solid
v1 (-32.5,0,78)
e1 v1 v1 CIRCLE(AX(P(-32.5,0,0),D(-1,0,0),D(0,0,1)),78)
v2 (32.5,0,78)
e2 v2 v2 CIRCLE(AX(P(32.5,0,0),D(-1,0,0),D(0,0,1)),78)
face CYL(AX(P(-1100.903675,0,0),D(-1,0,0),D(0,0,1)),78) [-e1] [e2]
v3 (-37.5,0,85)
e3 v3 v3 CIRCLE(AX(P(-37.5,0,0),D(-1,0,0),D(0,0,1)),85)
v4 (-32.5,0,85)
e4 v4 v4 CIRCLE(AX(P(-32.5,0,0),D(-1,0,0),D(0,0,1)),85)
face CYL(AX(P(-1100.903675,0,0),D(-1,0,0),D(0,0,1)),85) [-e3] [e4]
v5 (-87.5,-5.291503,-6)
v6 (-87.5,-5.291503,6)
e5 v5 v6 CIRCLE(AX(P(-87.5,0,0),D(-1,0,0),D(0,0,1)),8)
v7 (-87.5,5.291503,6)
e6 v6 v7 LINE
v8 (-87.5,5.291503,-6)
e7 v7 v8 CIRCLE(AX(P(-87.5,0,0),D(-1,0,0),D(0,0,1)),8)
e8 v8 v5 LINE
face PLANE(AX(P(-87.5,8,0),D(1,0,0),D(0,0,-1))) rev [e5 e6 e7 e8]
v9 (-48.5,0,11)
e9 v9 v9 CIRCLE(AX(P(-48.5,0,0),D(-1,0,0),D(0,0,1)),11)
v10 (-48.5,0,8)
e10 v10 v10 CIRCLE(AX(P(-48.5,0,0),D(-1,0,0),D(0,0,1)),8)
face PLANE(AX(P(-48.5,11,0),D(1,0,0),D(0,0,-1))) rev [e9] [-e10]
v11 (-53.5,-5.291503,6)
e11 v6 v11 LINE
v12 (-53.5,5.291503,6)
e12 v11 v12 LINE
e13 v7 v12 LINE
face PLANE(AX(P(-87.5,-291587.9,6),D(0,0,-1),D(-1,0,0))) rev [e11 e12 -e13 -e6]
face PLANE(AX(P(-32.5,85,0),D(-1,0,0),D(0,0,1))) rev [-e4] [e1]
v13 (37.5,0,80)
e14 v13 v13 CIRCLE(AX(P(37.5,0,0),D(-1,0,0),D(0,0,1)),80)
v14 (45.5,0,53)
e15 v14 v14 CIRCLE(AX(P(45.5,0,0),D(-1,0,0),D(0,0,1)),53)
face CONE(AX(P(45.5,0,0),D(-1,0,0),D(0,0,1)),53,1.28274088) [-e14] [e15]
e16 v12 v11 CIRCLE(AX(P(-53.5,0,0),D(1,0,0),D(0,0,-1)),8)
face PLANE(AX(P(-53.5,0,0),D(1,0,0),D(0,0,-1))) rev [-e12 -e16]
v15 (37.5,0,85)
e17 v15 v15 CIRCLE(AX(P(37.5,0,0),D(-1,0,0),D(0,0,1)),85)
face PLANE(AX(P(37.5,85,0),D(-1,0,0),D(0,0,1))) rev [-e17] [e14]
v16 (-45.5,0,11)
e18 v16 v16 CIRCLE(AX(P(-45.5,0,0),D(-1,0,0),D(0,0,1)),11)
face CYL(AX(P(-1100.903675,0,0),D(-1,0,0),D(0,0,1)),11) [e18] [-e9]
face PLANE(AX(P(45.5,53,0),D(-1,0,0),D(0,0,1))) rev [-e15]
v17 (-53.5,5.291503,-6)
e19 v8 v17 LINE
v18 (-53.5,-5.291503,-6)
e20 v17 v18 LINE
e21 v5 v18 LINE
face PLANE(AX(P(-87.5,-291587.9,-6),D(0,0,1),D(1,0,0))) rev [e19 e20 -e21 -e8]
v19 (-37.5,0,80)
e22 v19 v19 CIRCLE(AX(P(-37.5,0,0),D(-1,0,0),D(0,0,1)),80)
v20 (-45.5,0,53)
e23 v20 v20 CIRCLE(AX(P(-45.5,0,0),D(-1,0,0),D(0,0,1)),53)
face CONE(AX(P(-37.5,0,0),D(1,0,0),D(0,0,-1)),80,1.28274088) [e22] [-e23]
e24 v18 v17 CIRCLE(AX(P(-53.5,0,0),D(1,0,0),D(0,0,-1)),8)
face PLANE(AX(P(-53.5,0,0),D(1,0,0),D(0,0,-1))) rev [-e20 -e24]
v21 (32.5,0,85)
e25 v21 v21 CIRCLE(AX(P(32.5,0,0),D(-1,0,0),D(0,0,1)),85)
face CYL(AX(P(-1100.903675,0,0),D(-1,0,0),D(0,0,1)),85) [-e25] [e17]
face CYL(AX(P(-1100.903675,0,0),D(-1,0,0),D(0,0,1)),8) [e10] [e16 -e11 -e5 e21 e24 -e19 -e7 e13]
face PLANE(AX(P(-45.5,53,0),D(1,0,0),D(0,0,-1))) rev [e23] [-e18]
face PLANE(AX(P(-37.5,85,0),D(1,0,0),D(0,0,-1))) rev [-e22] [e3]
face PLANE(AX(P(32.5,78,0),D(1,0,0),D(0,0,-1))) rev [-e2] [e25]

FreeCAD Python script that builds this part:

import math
import FreeCAD as App
import Part
import Sketcher
from FreeCAD import Vector
Q = App.Units.Quantity

doc = App.newDocument("Part")
params = doc.addObject("Spreadsheet::Sheet", "Params")
for row, (alias, value) in enumerate([
    ("sketch1_width", "5 mm"),
    ("sketch1_width2", "65 mm"),
    ("sketch1_width3", "3 mm"),
    ("sketch1_width4", "39 mm"),
    ("sketch1_width5", "175 mm"),
    ("revolution_angle", "360 deg"),
    ("sketch2_radius", "8 mm"),
    ("sketch3_radius", "8 mm"),
    ("sketch4_diameter", "106 mm"),
    ("pocket3_length", "42 mm"),
], start=1):
    params.set(f"A{row}", alias)
    params.set(f"B{row}", "=" + value)
    params.setAlias(f"B{row}", alias)

body = doc.addObject("PartDesign::Body", "Body")

sketch1 = doc.addObject("Sketcher::SketchObject", "Sketch")
body.addObject(sketch1)
sketch1.AttachmentSupport = (doc.XY_Plane, [""])
sketch1.MapMode = "FlatFace"
sketch1.addGeometry(Part.LineSegment(Vector(37.5, 85, 0), Vector(32.5, 85, 0)), False)
sketch1.addGeometry(Part.LineSegment(Vector(32.5, 85, 0), Vector(32.5, 78, 0)), False)
sketch1.addGeometry(Part.LineSegment(Vector(32.5, 78, 0), Vector(-32.5, 78, 0)), False)
sketch1.addGeometry(Part.LineSegment(Vector(-32.5, 78, 0), Vector(-32.5, 85, 0)), False)
sketch1.addGeometry(Part.LineSegment(Vector(-32.5, 85, 0), Vector(-37.5, 85, 0)), False)
sketch1.addGeometry(Part.LineSegment(Vector(-37.5, 85, 0), Vector(-37.5, 80, 0)), False)
sketch1.addGeometry(Part.LineSegment(Vector(-37.5, 80, 0), Vector(-45.5, 53, 0)), False)
sketch1.addGeometry(Part.LineSegment(Vector(-45.5, 53, 0), Vector(-45.5, 11, 0)), False)
sketch1.addGeometry(Part.LineSegment(Vector(-45.5, 11, 0), Vector(-48.5, 11, 0)), False)
sketch1.addGeometry(Part.LineSegment(Vector(-48.5, 11, 0), Vector(-48.5, 8, 0)), False)
sketch1.addGeometry(Part.LineSegment(Vector(-48.5, 8, 0), Vector(-87.5, 8, 0)), False)
sketch1.addGeometry(Part.LineSegment(Vector(-87.5, 8, 0), Vector(-87.5, 0, 0)), False)
sketch1.addGeometry(Part.LineSegment(Vector(-87.5, 0, 0), Vector(87.5, 0, 0)), False)
sketch1.addGeometry(Part.LineSegment(Vector(87.5, 0, 0), Vector(87.5, 8, 0)), False)
sketch1.addGeometry(Part.LineSegment(Vector(87.5, 8, 0), Vector(48.5, 8, 0)), False)
sketch1.addGeometry(Part.LineSegment(Vector(48.5, 8, 0), Vector(48.5, 11, 0)), False)
sketch1.addGeometry(Part.LineSegment(Vector(48.5, 11, 0), Vector(45.5, 11, 0)), False)
sketch1.addGeometry(Part.LineSegment(Vector(45.5, 11, 0), Vector(45.5, 53, 0)), False)
sketch1.addGeometry(Part.LineSegment(Vector(45.5, 53, 0), Vector(37.5, 80, 0)), False)
sketch1.addGeometry(Part.LineSegment(Vector(37.5, 80, 0), Vector(37.5, 85, 0)), False)
sketch1.addConstraint(Sketcher.Constraint("Coincident", 0, 2, 1, 1))
sketch1.addConstraint(Sketcher.Constraint("Coincident", 1, 2, 2, 1))
sketch1.addConstraint(Sketcher.Constraint("Coincident", 2, 2, 3, 1))
sketch1.addConstraint(Sketcher.Constraint("Coincident", 3, 2, 4, 1))
sketch1.addConstraint(Sketcher.Constraint("Coincident", 4, 2, 5, 1))
sketch1.addConstraint(Sketcher.Constraint("Coincident", 5, 2, 6, 1))
sketch1.addConstraint(Sketcher.Constraint("Coincident", 6, 2, 7, 1))
sketch1.addConstraint(Sketcher.Constraint("Coincident", 7, 2, 8, 1))
sketch1.addConstraint(Sketcher.Constraint("Coincident", 8, 2, 9, 1))
sketch1.addConstraint(Sketcher.Constraint("Coincident", 9, 2, 10, 1))
sketch1.addConstraint(Sketcher.Constraint("Coincident", 10, 2, 11, 1))
sketch1.addConstraint(Sketcher.Constraint("Coincident", 11, 2, 12, 1))
sketch1.addConstraint(Sketcher.Constraint("Coincident", 12, 2, 13, 1))
sketch1.addConstraint(Sketcher.Constraint("Coincident", 13, 2, 14, 1))
sketch1.addConstraint(Sketcher.Constraint("Coincident", 14, 2, 15, 1))
sketch1.addConstraint(Sketcher.Constraint("Coincident", 15, 2, 16, 1))
sketch1.addConstraint(Sketcher.Constraint("Coincident", 16, 2, 17, 1))
sketch1.addConstraint(Sketcher.Constraint("Coincident", 17, 2, 18, 1))
sketch1.addConstraint(Sketcher.Constraint("Coincident", 18, 2, 19, 1))
sketch1.addConstraint(Sketcher.Constraint("Coincident", 19, 2, 0, 1))
sketch1.addConstraint(Sketcher.Constraint("Horizontal", 0))
sketch1.addConstraint(Sketcher.Constraint("Vertical", 1))
sketch1.addConstraint(Sketcher.Constraint("Horizontal", 2))
sketch1.addConstraint(Sketcher.Constraint("Vertical", 3))
sketch1.addConstraint(Sketcher.Constraint("Horizontal", 4))
sketch1.addConstraint(Sketcher.Constraint("Vertical", 5))
sketch1.addConstraint(Sketcher.Constraint("Vertical", 7))
sketch1.addConstraint(Sketcher.Constraint("Horizontal", 8))
sketch1.addConstraint(Sketcher.Constraint("Vertical", 9))
sketch1.addConstraint(Sketcher.Constraint("Horizontal", 10))
sketch1.addConstraint(Sketcher.Constraint("Vertical", 11))
sketch1.addConstraint(Sketcher.Constraint("Horizontal", 12))
sketch1.addConstraint(Sketcher.Constraint("Vertical", 13))
sketch1.addConstraint(Sketcher.Constraint("Horizontal", 14))
sketch1.addConstraint(Sketcher.Constraint("Vertical", 15))
sketch1.addConstraint(Sketcher.Constraint("Horizontal", 16))
sketch1.addConstraint(Sketcher.Constraint("Vertical", 17))
sketch1.addConstraint(Sketcher.Constraint("Vertical", 19))
sketch1.addConstraint(Sketcher.Constraint("Symmetric", 11, 2, 12, 2, -1, 1))
sketch1.addConstraint(Sketcher.Constraint("Symmetric", 0, 2, 3, 2, -2))
sketch1.addConstraint(Sketcher.Constraint("Symmetric", 9, 2, 14, 2, -2))
sketch1.addConstraint(Sketcher.Constraint("Symmetric", 7, 2, 16, 2, -2))
sketch1.addConstraint(Sketcher.Constraint("Symmetric", 5, 2, 18, 2, -2))
sketch1.addConstraint(Sketcher.Constraint("Horizontal", 6, 2, 17, 2))
sketch1.addConstraint(Sketcher.Constraint("Equal", 4, 5))
sketch1.addConstraint(Sketcher.Constraint("Equal", 16, 9))
sketch1.addConstraint(Sketcher.Constraint("DistanceX", 0, 2, 0, 1, Q("5 mm")))
sketch1.addConstraint(Sketcher.Constraint("DistanceX", 2, 2, 2, 1, Q("65 mm")))
sketch1.addConstraint(Sketcher.Constraint("DistanceX", 8, 2, 8, 1, Q("3 mm")))
sketch1.addConstraint(Sketcher.Constraint("DistanceX", 10, 2, 10, 1, Q("39 mm")))
sketch1.addConstraint(Sketcher.Constraint("DistanceX", 12, 1, 12, 2, Q("175 mm")))
sketch1.addConstraint(Sketcher.Constraint("DistanceY", 1, 2, 1, 1, Q("7 mm")))
sketch1.addConstraint(Sketcher.Constraint("DistanceY", 7, 2, 7, 1, Q("42 mm")))
sketch1.addConstraint(Sketcher.Constraint("DistanceY", 11, 2, 11, 1, Q("8 mm")))
sketch1.addConstraint(Sketcher.Constraint("DistanceY", -1, 1, 0, 2, Q("85 mm")))
sketch1.setExpression("Constraints[46]", "Params.sketch1_width")
sketch1.setExpression("Constraints[47]", "Params.sketch1_width2")
sketch1.setExpression("Constraints[48]", "Params.sketch1_width3")
sketch1.setExpression("Constraints[49]", "Params.sketch1_width4")
sketch1.setExpression("Constraints[50]", "Params.sketch1_width5")
revolution = doc.addObject("PartDesign::Revolution", "Revolution")
body.addObject(revolution)
revolution.Profile = sketch1
revolution.ReferenceAxis = (sketch1, ["H_Axis"])
revolution.setExpression("Angle", "Params.revolution_angle")

sketch2 = doc.addObject("Sketcher::SketchObject", "Sketch001")
body.addObject(sketch2)
sketch2.AttachmentSupport = (doc.YZ_Plane, [""])
sketch2.MapMode = "FlatFace"
sketch2.AttachmentOffset = App.Placement(Vector(0, 0, -53.5), App.Rotation())
sketch2.addGeometry(Part.LineSegment(Vector(115.736, 115.736, 0), Vector(-115.736, 115.736, 0)), False)
sketch2.addGeometry(Part.LineSegment(Vector(-115.736, 115.736, 0), Vector(-115.736, -115.736, 0)), False)
sketch2.addGeometry(Part.LineSegment(Vector(-115.736, -115.736, 0), Vector(115.736, -115.736, 0)), False)
sketch2.addGeometry(Part.LineSegment(Vector(115.736, -115.736, 0), Vector(115.736, 115.736, 0)), False)
sketch2.addGeometry(Part.LineSegment(Vector(-5.291503, 6, 0), Vector(5.291503, 6, 0)), False)
sketch2.addGeometry(Part.ArcOfCircle(Part.Circle(Vector(0, 0, 0), Vector(0, 0, 1), 8), math.radians(-48.590378), math.radians(48.590378)), False)
sketch2.addGeometry(Part.LineSegment(Vector(5.291503, -6, 0), Vector(-5.291503, -6, 0)), False)
sketch2.addGeometry(Part.ArcOfCircle(Part.Circle(Vector(0, 0, 0), Vector(0, 0, 1), 8), math.radians(131.409622), math.radians(228.590378)), False)
sketch2.addConstraint(Sketcher.Constraint("Coincident", 0, 2, 1, 1))
sketch2.addConstraint(Sketcher.Constraint("Coincident", 1, 2, 2, 1))
sketch2.addConstraint(Sketcher.Constraint("Coincident", 2, 2, 3, 1))
sketch2.addConstraint(Sketcher.Constraint("Coincident", 3, 2, 0, 1))
sketch2.addConstraint(Sketcher.Constraint("Coincident", 4, 2, 5, 2))
sketch2.addConstraint(Sketcher.Constraint("Coincident", 5, 1, 6, 1))
sketch2.addConstraint(Sketcher.Constraint("Coincident", 6, 2, 7, 2))
sketch2.addConstraint(Sketcher.Constraint("Coincident", 7, 1, 4, 1))
sketch2.addConstraint(Sketcher.Constraint("Horizontal", 0))
sketch2.addConstraint(Sketcher.Constraint("Vertical", 1))
sketch2.addConstraint(Sketcher.Constraint("Horizontal", 2))
sketch2.addConstraint(Sketcher.Constraint("Vertical", 3))
sketch2.addConstraint(Sketcher.Constraint("Horizontal", 4))
sketch2.addConstraint(Sketcher.Constraint("Horizontal", 6))
sketch2.addConstraint(Sketcher.Constraint("Coincident", 5, 3, -1, 1))
sketch2.addConstraint(Sketcher.Constraint("Coincident", 7, 3, -1, 1))
sketch2.addConstraint(Sketcher.Constraint("Equal", 5, 7))
sketch2.addConstraint(Sketcher.Constraint("Symmetric", 0, 2, 2, 2, -1, 1))
sketch2.addConstraint(Sketcher.Constraint("Vertical", 4, 2, 5, 1))
sketch2.addConstraint(Sketcher.Constraint("Equal", 2, 1))
sketch2.addConstraint(Sketcher.Constraint("Radius", 5, Q("8 mm")))
sketch2.addConstraint(Sketcher.Constraint("DistanceY", -1, 1, 4, 2, Q("6 mm")))
sketch2.addConstraint(Sketcher.Constraint("DistanceX", 0, 2, 0, 1, Q("231.472 mm")))
sketch2.setExpression("Constraints[20]", "Params.sketch2_radius")
pocket1 = doc.addObject("PartDesign::Pocket", "Pocket")
body.addObject(pocket1)
pocket1.Profile = sketch2
pocket1.Type = "ThroughAll"

sketch3 = doc.addObject("Sketcher::SketchObject", "Sketch002")
body.addObject(sketch3)
sketch3.AttachmentSupport = (doc.YZ_Plane, [""])
sketch3.MapMode = "FlatFace"
sketch3.AttachmentOffset = App.Placement(Vector(0, 0, 53.5), App.Rotation())
sketch3.addGeometry(Part.LineSegment(Vector(115.736, 115.736, 0), Vector(-115.736, 115.736, 0)), False)
sketch3.addGeometry(Part.LineSegment(Vector(-115.736, 115.736, 0), Vector(-115.736, -115.736, 0)), False)
sketch3.addGeometry(Part.LineSegment(Vector(-115.736, -115.736, 0), Vector(115.736, -115.736, 0)), False)
sketch3.addGeometry(Part.LineSegment(Vector(115.736, -115.736, 0), Vector(115.736, 115.736, 0)), False)
sketch3.addGeometry(Part.LineSegment(Vector(-5.291503, 6, 0), Vector(5.291503, 6, 0)), False)
sketch3.addGeometry(Part.ArcOfCircle(Part.Circle(Vector(0, 0, 0), Vector(0, 0, 1), 8), math.radians(-48.590378), math.radians(48.590378)), False)
sketch3.addGeometry(Part.LineSegment(Vector(5.291503, -6, 0), Vector(-5.291503, -6, 0)), False)
sketch3.addGeometry(Part.ArcOfCircle(Part.Circle(Vector(0, 0, 0), Vector(0, 0, 1), 8), math.radians(131.409622), math.radians(228.590378)), False)
sketch3.addConstraint(Sketcher.Constraint("Coincident", 0, 2, 1, 1))
sketch3.addConstraint(Sketcher.Constraint("Coincident", 1, 2, 2, 1))
sketch3.addConstraint(Sketcher.Constraint("Coincident", 2, 2, 3, 1))
sketch3.addConstraint(Sketcher.Constraint("Coincident", 3, 2, 0, 1))
sketch3.addConstraint(Sketcher.Constraint("Coincident", 4, 2, 5, 2))
sketch3.addConstraint(Sketcher.Constraint("Coincident", 5, 1, 6, 1))
sketch3.addConstraint(Sketcher.Constraint("Coincident", 6, 2, 7, 2))
sketch3.addConstraint(Sketcher.Constraint("Coincident", 7, 1, 4, 1))
sketch3.addConstraint(Sketcher.Constraint("Horizontal", 0))
sketch3.addConstraint(Sketcher.Constraint("Vertical", 1))
sketch3.addConstraint(Sketcher.Constraint("Horizontal", 2))
sketch3.addConstraint(Sketcher.Constraint("Vertical", 3))
sketch3.addConstraint(Sketcher.Constraint("Horizontal", 4))
sketch3.addConstraint(Sketcher.Constraint("Horizontal", 6))
sketch3.addConstraint(Sketcher.Constraint("Coincident", 5, 3, -1, 1))
sketch3.addConstraint(Sketcher.Constraint("Coincident", 7, 3, -1, 1))
sketch3.addConstraint(Sketcher.Constraint("Equal", 5, 7))
sketch3.addConstraint(Sketcher.Constraint("Symmetric", 0, 2, 2, 2, -1, 1))
sketch3.addConstraint(Sketcher.Constraint("Vertical", 4, 2, 5, 1))
sketch3.addConstraint(Sketcher.Constraint("Equal", 2, 1))
sketch3.addConstraint(Sketcher.Constraint("Radius", 5, Q("8 mm")))
sketch3.addConstraint(Sketcher.Constraint("DistanceY", -1, 1, 4, 2, Q("6 mm")))
sketch3.addConstraint(Sketcher.Constraint("DistanceX", 0, 2, 0, 1, Q("231.472 mm")))
sketch3.setExpression("Constraints[20]", "Params.sketch3_radius")
pocket2 = doc.addObject("PartDesign::Pocket", "Pocket001")
body.addObject(pocket2)
pocket2.Profile = sketch3
pocket2.Type = "ThroughAll"
pocket2.Reversed = True

sketch4 = doc.addObject("Sketcher::SketchObject", "Sketch003")
body.addObject(sketch4)
sketch4.AttachmentSupport = (doc.YZ_Plane, [""])
sketch4.MapMode = "FlatFace"
sketch4.AttachmentOffset = App.Placement(Vector(0, 0, 87.5), App.Rotation())
sketch4.addGeometry(Part.Circle(Vector(0, 0, 0), Vector(0, 0, 1), 53), False)
sketch4.addConstraint(Sketcher.Constraint("Coincident", 0, 3, -1, 1))
sketch4.addConstraint(Sketcher.Constraint("Diameter", 0, Q("106 mm")))
sketch4.setExpression("Constraints[1]", "Params.sketch4_diameter")
pocket3 = doc.addObject("PartDesign::Pocket", "Pocket002")
body.addObject(pocket3)
pocket3.Profile = sketch4
pocket3.setExpression("Length", "Params.pocket3_length")

doc.recompute()
